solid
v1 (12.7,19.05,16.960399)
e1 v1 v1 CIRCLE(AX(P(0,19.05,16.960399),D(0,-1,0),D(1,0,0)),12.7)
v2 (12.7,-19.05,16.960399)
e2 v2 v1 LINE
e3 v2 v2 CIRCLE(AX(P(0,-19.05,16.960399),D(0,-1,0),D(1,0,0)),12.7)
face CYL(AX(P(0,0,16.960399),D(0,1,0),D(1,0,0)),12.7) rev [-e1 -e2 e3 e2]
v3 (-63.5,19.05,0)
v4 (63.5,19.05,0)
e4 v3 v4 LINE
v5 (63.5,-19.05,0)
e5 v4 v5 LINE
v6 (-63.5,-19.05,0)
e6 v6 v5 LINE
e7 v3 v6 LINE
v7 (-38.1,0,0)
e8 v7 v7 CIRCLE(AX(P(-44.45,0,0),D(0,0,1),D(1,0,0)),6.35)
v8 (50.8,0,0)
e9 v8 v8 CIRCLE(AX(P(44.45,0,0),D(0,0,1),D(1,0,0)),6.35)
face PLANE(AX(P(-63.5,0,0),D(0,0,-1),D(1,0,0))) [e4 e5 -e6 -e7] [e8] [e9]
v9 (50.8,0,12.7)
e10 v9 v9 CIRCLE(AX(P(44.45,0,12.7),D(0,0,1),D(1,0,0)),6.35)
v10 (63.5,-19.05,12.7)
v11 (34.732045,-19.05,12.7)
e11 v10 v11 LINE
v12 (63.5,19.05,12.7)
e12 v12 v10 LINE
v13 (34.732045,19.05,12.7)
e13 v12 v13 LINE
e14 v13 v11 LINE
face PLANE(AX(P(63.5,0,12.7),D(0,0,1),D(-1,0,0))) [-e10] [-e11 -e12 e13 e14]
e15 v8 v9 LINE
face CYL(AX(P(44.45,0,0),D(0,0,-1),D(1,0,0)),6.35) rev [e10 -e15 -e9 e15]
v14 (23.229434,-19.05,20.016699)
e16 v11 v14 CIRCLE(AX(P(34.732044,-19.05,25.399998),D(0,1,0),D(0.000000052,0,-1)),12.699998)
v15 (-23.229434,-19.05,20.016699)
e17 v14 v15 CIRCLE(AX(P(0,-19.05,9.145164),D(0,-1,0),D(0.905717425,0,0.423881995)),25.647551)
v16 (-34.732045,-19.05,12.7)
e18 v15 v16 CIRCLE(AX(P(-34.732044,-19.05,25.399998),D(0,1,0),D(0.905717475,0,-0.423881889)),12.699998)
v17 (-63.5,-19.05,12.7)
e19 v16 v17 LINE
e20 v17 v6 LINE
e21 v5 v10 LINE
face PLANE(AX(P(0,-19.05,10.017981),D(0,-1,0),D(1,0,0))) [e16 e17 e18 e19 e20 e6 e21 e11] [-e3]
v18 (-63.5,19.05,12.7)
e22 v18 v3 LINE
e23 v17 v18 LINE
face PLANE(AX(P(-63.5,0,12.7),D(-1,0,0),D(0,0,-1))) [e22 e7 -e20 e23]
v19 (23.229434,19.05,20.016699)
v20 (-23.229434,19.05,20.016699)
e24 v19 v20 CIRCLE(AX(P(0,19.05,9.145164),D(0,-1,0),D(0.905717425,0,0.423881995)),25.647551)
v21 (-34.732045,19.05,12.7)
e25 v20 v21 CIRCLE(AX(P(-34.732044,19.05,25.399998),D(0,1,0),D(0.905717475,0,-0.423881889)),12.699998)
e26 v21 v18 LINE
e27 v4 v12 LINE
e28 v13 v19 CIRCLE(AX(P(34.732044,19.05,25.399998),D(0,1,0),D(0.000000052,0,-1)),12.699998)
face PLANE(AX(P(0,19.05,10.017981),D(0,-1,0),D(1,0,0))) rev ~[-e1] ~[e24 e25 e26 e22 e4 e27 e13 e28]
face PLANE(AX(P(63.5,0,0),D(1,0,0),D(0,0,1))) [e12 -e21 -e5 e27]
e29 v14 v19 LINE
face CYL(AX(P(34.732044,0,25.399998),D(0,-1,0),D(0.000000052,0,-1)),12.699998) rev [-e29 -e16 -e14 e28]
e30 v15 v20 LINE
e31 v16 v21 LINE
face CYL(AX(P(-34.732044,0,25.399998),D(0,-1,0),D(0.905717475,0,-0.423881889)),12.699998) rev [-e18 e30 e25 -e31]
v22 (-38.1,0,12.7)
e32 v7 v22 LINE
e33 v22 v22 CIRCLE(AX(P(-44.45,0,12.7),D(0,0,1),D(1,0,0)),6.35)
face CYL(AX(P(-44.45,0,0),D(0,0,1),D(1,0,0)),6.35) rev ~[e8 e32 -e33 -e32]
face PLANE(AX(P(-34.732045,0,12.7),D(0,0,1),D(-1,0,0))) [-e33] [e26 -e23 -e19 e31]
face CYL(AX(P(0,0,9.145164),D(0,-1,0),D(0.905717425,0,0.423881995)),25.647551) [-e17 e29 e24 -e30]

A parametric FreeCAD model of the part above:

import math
import FreeCAD as App
import Part
import Sketcher

V = App.Vector
Q = App.Units.Quantity

doc = App.newDocument("Part")
body = doc.addObject("PartDesign::Body", "Body")

# Sketch on XZ plane
sketch1 = body.newObject("Sketcher::SketchObject", "Sketch")
sketch1.AttachmentSupport = (doc.getObject("XZ_Plane"), [""])
sketch1.MapMode = "FlatFace"
sketch1.addGeometry(Part.LineSegment(V(-64, 13, 0), V(-64, 0, 0)), False)
sketch1.addGeometry(Part.LineSegment(V(-64, 0, 0), V(64, 0, 0)), False)
sketch1.addGeometry(Part.LineSegment(V(64, 0, 0), V(64, 13, 0)), False)
sketch1.addGeometry(Part.LineSegment(V(64, 13, 0), V(35, 13, 0)), False)
sketch1.addGeometry(Part.ArcOfCircle(Part.Circle(V(35, 25, 0), V(0, 0, 1), 13), math.radians(-155), math.radians(-90)), False)
sketch1.addGeometry(Part.ArcOfCircle(Part.Circle(V(0, 9, 0), V(0, 0, 1), 26), math.radians(25), math.radians(155)), False)
sketch1.addGeometry(Part.ArcOfCircle(Part.Circle(V(-35, 25, 0), V(0, 0, 1), 13), math.radians(-90), math.radians(-25)), False)
sketch1.addGeometry(Part.LineSegment(V(-35, 13, 0), V(-64, 13, 0)), False)
sketch1.addGeometry(Part.Circle(V(0, 17, 0), V(0, 0, 1), 13), False)
sketch1.addConstraint(Sketcher.Constraint("Coincident", 0, 2, 1, 1))
sketch1.addConstraint(Sketcher.Constraint("Coincident", 1, 2, 2, 1))
sketch1.addConstraint(Sketcher.Constraint("Coincident", 2, 2, 3, 1))
sketch1.addConstraint(Sketcher.Constraint("Tangent", 3, 2, 4, 2))
sketch1.addConstraint(Sketcher.Constraint("Tangent", 4, 1, 5, 1))
sketch1.addConstraint(Sketcher.Constraint("Tangent", 5, 2, 6, 2))
sketch1.addConstraint(Sketcher.Constraint("Tangent", 6, 1, 7, 1))
sketch1.addConstraint(Sketcher.Constraint("Coincident", 7, 2, 0, 1))
sketch1.addConstraint(Sketcher.Constraint("Vertical", 0))
sketch1.addConstraint(Sketcher.Constraint("Horizontal", 1))
sketch1.addConstraint(Sketcher.Constraint("Vertical", 2))
sketch1.addConstraint(Sketcher.Constraint("Horizontal", 3))
sketch1.addConstraint(Sketcher.Constraint("Horizontal", 7))
sketch1.addConstraint(Sketcher.Constraint("Equal", 4, 6))
sketch1.addConstraint(Sketcher.Constraint("Equal", 6, 8))
sketch1.addConstraint(Sketcher.Constraint("Symmetric", 0, 2, 1, 2, -1, 1))
sketch1.addConstraint(Sketcher.Constraint("Symmetric", 4, 3, 6, 3, -2))
sketch1.addConstraint(Sketcher.Constraint("PointOnObject", 8, 3, -2))
sketch1.addConstraint(Sketcher.Constraint("Diameter", 8, Q("1 in")))
sketch1.addConstraint(Sketcher.Constraint("DistanceX", 1, 1, 1, 2, Q("5 in")))
sketch1.addConstraint(Sketcher.Constraint("DistanceY", 0, 2, 0, 1, Q("0.5 in")))
sketch1.addConstraint(Sketcher.Constraint("Radius", 5, Q("25.647551 mm")))
sketch1.addConstraint(Sketcher.Constraint("DistanceY", -1, 1, 8, 3, Q("16.960399 mm")))
sketch1.addConstraint(Sketcher.Constraint("DistanceY", -1, 1, 4, 1, Q("20.016699 mm")))
pad1 = body.newObject("PartDesign::Pad", "Pad")
pad1.Profile = sketch1
pad1.Length = Q("1.5 in")
pad1.Midplane = True

# Sketch on XY plane
sketch2 = body.newObject("Sketcher::SketchObject", "Sketch001")
sketch2.AttachmentSupport = (doc.getObject("XY_Plane"), [""])
sketch2.MapMode = "FlatFace"
sketch2.addGeometry(Part.Circle(V(44, 0, 0), V(0, 0, 1), 6), False)
sketch2.addGeometry(Part.Circle(V(-44, 0, 0), V(0, 0, 1), 6), False)
sketch2.addConstraint(Sketcher.Constraint("Equal", 0, 1))
sketch2.addConstraint(Sketcher.Constraint("Symmetric", 0, 3, 1, 3, -1, 1))
sketch2.addConstraint(Sketcher.Constraint("PointOnObject", 0, 3, -1))
sketch2.addConstraint(Sketcher.Constraint("Diameter", 0, Q("0.5 in")))
sketch2.addConstraint(Sketcher.Constraint("DistanceX", 1, 3, 0, 3, Q("3.5 in")))
pocket1 = body.newObject("PartDesign::Pocket", "Pocket")
pocket1.Profile = sketch2
pocket1.Length = Q("1 in")
pocket1.Midplane = True

doc.recompute()
